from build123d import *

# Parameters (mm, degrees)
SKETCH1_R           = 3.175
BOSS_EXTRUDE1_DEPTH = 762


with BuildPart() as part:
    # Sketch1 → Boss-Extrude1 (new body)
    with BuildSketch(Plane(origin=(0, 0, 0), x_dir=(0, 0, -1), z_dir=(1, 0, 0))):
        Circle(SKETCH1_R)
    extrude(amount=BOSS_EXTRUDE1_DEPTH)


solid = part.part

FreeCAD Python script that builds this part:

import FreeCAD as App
import Part
import Sketcher
Q = App.Units.Quantity

doc = App.newDocument("Part")
body = doc.addObject("PartDesign::Body", "Body")

# Sketch on YZ plane
sketch1 = body.newObject("Sketcher::SketchObject", "Sketch")
sketch1.AttachmentSupport = (doc.getObject("YZ_Plane"), [""])
sketch1.MapMode = "FlatFace"
sketch1.addGeometry(Part.Circle(App.Vector(0, 0, 0), App.Vector(0, 0, 1), 3.2), False)
sketch1.addConstraint([
    Sketcher.Constraint("Coincident", 0, 3, -1, 1),
    Sketcher.Constraint("Diameter", 0, Q("0.25 in")),
])
pad1 = body.newObject("PartDesign::Pad", "Pad")
pad1.Profile = sketch1
pad1.Length = Q("30 in")

doc.recompute()
